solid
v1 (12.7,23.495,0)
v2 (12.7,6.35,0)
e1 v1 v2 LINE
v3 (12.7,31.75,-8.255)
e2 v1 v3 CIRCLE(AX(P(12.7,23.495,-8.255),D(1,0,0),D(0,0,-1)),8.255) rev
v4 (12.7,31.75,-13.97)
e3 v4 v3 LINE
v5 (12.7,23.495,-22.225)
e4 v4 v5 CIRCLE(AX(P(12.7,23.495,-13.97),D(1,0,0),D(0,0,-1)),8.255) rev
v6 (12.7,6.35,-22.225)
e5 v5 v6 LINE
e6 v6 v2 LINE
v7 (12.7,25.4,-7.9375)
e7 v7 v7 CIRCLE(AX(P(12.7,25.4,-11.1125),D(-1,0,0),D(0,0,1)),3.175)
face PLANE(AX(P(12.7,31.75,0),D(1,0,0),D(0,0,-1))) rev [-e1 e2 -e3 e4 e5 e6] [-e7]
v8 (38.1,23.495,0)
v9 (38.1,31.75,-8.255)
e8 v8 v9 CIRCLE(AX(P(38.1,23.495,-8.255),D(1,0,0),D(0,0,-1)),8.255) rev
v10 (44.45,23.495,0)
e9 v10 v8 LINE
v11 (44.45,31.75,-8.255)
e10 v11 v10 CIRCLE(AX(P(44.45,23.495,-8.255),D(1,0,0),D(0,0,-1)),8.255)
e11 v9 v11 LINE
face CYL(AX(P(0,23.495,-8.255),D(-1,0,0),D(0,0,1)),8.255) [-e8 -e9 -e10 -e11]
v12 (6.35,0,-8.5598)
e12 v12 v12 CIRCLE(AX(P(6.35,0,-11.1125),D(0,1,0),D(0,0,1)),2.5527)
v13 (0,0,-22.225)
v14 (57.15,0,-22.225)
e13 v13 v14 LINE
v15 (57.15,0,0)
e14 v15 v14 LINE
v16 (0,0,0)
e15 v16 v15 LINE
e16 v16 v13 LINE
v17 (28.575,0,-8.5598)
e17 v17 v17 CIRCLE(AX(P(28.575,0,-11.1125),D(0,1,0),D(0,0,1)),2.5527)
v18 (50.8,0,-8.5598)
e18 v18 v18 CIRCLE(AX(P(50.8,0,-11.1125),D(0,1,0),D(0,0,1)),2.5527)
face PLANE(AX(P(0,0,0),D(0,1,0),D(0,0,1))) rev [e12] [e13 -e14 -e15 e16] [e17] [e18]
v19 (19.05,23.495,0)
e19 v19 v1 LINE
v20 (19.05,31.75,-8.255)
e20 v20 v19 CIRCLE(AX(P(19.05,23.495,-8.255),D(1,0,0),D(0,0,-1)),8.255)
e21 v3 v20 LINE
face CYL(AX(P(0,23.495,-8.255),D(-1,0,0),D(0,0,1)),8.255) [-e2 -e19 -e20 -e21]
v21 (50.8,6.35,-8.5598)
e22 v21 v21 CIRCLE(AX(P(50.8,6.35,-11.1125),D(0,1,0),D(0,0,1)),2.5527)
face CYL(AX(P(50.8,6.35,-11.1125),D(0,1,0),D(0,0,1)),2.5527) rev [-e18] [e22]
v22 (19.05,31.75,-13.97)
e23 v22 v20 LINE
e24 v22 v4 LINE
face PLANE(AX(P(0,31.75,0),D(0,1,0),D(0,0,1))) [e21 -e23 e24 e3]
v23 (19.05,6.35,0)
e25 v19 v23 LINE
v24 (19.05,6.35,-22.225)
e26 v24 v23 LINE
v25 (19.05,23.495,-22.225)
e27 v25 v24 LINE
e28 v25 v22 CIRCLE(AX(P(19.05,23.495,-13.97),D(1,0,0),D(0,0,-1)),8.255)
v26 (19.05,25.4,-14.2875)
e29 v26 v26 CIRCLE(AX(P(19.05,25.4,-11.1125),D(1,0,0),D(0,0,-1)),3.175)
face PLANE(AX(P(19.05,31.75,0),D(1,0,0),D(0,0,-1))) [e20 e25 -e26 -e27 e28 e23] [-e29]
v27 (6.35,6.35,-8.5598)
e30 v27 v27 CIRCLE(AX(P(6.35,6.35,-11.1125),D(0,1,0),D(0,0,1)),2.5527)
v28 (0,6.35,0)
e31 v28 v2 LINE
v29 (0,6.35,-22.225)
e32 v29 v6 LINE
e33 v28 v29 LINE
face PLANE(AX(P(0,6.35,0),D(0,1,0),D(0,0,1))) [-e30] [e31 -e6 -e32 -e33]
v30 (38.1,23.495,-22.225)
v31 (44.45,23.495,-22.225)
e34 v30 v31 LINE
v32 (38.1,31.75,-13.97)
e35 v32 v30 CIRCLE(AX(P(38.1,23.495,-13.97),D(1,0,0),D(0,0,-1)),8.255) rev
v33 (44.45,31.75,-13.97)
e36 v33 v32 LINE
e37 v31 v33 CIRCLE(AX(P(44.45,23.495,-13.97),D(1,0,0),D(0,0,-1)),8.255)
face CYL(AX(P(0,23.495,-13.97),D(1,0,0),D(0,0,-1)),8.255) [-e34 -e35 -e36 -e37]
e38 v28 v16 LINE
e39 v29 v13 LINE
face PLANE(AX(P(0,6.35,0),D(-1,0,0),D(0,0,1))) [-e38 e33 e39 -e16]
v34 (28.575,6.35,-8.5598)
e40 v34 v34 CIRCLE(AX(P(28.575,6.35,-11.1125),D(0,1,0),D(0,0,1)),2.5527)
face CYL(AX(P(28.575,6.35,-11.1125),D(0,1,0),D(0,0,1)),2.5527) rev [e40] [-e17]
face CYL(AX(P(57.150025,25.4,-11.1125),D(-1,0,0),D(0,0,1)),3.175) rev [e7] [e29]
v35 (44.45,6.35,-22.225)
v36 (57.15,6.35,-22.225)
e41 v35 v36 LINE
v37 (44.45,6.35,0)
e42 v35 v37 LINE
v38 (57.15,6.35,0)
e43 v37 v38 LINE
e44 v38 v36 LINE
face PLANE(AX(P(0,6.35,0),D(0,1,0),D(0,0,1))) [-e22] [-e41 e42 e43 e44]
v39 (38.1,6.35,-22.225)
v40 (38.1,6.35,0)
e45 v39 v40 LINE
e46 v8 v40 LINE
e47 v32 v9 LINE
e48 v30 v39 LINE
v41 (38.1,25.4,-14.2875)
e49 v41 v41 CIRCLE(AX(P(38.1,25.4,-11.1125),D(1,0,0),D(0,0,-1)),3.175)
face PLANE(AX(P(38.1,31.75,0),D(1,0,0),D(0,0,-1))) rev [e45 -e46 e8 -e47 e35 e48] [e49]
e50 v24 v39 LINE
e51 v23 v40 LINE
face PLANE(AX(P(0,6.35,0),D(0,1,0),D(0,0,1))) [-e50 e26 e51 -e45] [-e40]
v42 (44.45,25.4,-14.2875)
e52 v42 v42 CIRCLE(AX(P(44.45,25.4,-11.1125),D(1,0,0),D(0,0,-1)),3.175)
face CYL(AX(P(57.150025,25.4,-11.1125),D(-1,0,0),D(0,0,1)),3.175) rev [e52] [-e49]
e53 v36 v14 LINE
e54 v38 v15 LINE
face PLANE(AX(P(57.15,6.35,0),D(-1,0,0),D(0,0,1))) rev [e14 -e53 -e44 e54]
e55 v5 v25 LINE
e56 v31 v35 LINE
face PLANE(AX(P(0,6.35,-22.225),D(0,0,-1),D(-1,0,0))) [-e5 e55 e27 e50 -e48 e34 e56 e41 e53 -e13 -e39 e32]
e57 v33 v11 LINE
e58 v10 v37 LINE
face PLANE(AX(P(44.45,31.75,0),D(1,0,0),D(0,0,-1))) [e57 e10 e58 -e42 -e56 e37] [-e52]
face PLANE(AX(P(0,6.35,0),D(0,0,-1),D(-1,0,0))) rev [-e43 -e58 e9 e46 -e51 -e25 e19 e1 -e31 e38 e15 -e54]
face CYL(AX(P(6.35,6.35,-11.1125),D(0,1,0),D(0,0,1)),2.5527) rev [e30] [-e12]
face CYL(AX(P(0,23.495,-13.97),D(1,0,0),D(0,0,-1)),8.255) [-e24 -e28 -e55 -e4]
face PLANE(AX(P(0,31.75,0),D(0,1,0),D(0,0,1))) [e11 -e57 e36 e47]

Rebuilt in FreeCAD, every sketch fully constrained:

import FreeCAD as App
import Part
import Sketcher

V = App.Vector
Q = App.Units.Quantity


def edges_at(feature, points):
    """Names of the edges that pass closest to the given points."""
    edges = feature.Shape.Edges
    near = lambda p: min(range(len(edges)), key=lambda i: edges[i].distToShape(Part.Vertex(*p))[0])
    return sorted({f"Edge{near(p) + 1}" for p in points})

doc = App.newDocument("Part")
body = doc.addObject("PartDesign::Body", "Body")

sketch1 = body.newObject("Sketcher::SketchObject", "Sketch")
sketch1.AttachmentSupport = (doc.getObject("XZ_Plane"), [""])
sketch1.MapMode = "FlatFace"
sketch1.addGeometry([
    Part.LineSegment(V(0, -22, 0), V(0, 0, 0)),
    Part.LineSegment(V(0, 0, 0), V(13, 0, 0)),
    Part.LineSegment(V(13, 0, 0), V(13, -22, 0)),
    Part.LineSegment(V(13, -22, 0), V(0, -22, 0)),
], False)
sketch1.addConstraint([
    Sketcher.Constraint("Coincident", 0, 2, 1, 1),
    Sketcher.Constraint("Coincident", 1, 2, 2, 1),
    Sketcher.Constraint("Coincident", 2, 2, 3, 1),
    Sketcher.Constraint("Coincident", 3, 2, 0, 1),
    Sketcher.Constraint("Vertical", 0),
    Sketcher.Constraint("Horizontal", 1),
    Sketcher.Constraint("Vertical", 2),
    Sketcher.Constraint("Horizontal", 3),
    Sketcher.Constraint("Coincident", 0, 2, -1, 1),
    Sketcher.Constraint("DistanceX", 1, 1, 1, 2, Q("0.5 in")),
    Sketcher.Constraint("DistanceY", 0, 1, 0, 2, Q("0.875 in")),
])
pad1 = body.newObject("PartDesign::Pad", "Pad")
pad1.Profile = sketch1
pad1.Length = Q("0.25 in")
pad1.Reversed = True
body2 = doc.addObject("PartDesign::Body", "Body001")

sketch2 = body2.newObject("Sketcher::SketchObject", "Sketch001")
sketch2.AttachmentSupport = (doc.getObject("XZ_Plane001"), [""])
sketch2.MapMode = "FlatFace"
sketch2.addGeometry([
    Part.LineSegment(V(44, -22, 0), V(44, 0, 0)),
    Part.LineSegment(V(44, 0, 0), V(57, 0, 0)),
    Part.LineSegment(V(57, 0, 0), V(57, -22, 0)),
    Part.LineSegment(V(57, -22, 0), V(44, -22, 0)),
], False)
sketch2.addConstraint([
    Sketcher.Constraint("Coincident", 0, 2, 1, 1),
    Sketcher.Constraint("Coincident", 1, 2, 2, 1),
    Sketcher.Constraint("Coincident", 2, 2, 3, 1),
    Sketcher.Constraint("Coincident", 3, 2, 0, 1),
    Sketcher.Constraint("Vertical", 0),
    Sketcher.Constraint("Horizontal", 1),
    Sketcher.Constraint("Vertical", 2),
    Sketcher.Constraint("Horizontal", 3),
    Sketcher.Constraint("PointOnObject", 0, 2, -1),
    Sketcher.Constraint("DistanceX", 1, 1, 1, 2, Q("0.5 in")),
    Sketcher.Constraint("DistanceY", 0, 1, 0, 2, Q("0.875 in")),
    Sketcher.Constraint("DistanceX", -1, 1, 0, 2, Q("1.75 in")),
])
pad2 = body2.newObject("PartDesign::Pad", "Pad001")
pad2.Profile = sketch2
pad2.Length = Q("0.25 in")
pad2.Reversed = True
body3 = doc.addObject("PartDesign::Body", "Body002")

sketch3 = body3.newObject("Sketcher::SketchObject", "Sketch002")
sketch3.AttachmentSupport = (doc.getObject("XZ_Plane002"), [""])
sketch3.MapMode = "FlatFace"
sketch3.addGeometry([
    Part.LineSegment(V(19, -22, 0), V(19, 0, 0)),
    Part.LineSegment(V(19, 0, 0), V(38, 0, 0)),
    Part.LineSegment(V(38, 0, 0), V(38, -22, 0)),
    Part.LineSegment(V(38, -22, 0), V(19, -22, 0)),
], False)
sketch3.addConstraint([
    Sketcher.Constraint("Coincident", 0, 2, 1, 1),
    Sketcher.Constraint("Coincident", 1, 2, 2, 1),
    Sketcher.Constraint("Coincident", 2, 2, 3, 1),
    Sketcher.Constraint("Coincident", 3, 2, 0, 1),
    Sketcher.Constraint("Vertical", 0),
    Sketcher.Constraint("Horizontal", 1),
    Sketcher.Constraint("Vertical", 2),
    Sketcher.Constraint("Horizontal", 3),
    Sketcher.Constraint("PointOnObject", 0, 2, -1),
    Sketcher.Constraint("DistanceX", 1, 1, 1, 2, Q("0.75 in")),
    Sketcher.Constraint("DistanceX", -1, 1, 1, 2, Q("1.5 in")),
    Sketcher.Constraint("DistanceY", 0, 1, 0, 2, Q("0.875 in")),
])
pad3 = body3.newObject("PartDesign::Pad", "Pad002")
pad3.Profile = sketch3
pad3.Length = Q("0.25 in")
pad3.Reversed = True
body.AllowCompound = True
doc.recompute()

boolean = body.newObject("PartDesign::Boolean", "Boolean")
boolean.Type = "Fuse"
boolean.addObjects([body2])
doc.recompute()

boolean2 = body.newObject("PartDesign::Boolean", "Boolean001")
boolean2.Type = "Fuse"
boolean2.addObjects([body3])

sketch4 = body.newObject("Sketcher::SketchObject", "Sketch003")
sketch4.AttachmentSupport = (doc.getObject("XZ_Plane"), [""])
sketch4.MapMode = "FlatFace"
sketch4.addGeometry([
    Part.LineSegment(V(13, -22, 0), V(13, 0, 0)),
    Part.LineSegment(V(13, 0, 0), V(19, 0, 0)),
    Part.LineSegment(V(19, 0, 0), V(19, -22, 0)),
    Part.LineSegment(V(19, -22, 0), V(13, -22, 0)),
    Part.LineSegment(V(38, -22, 0), V(38, 0, 0)),
    Part.LineSegment(V(38, 0, 0), V(44, 0, 0)),
    Part.LineSegment(V(44, 0, 0), V(44, -22, 0)),
    Part.LineSegment(V(44, -22, 0), V(38, -22, 0)),
], False)
sketch4.addConstraint([
    Sketcher.Constraint("Coincident", 0, 2, 1, 1),
    Sketcher.Constraint("Coincident", 1, 2, 2, 1),
    Sketcher.Constraint("Coincident", 2, 2, 3, 1),
    Sketcher.Constraint("Coincident", 3, 2, 0, 1),
    Sketcher.Constraint("Coincident", 4, 2, 5, 1),
    Sketcher.Constraint("Coincident", 5, 2, 6, 1),
    Sketcher.Constraint("Coincident", 6, 2, 7, 1),
    Sketcher.Constraint("Coincident", 7, 2, 4, 1),
    Sketcher.Constraint("Vertical", 0),
    Sketcher.Constraint("Horizontal", 1),
    Sketcher.Constraint("Vertical", 2),
    Sketcher.Constraint("Horizontal", 3),
    Sketcher.Constraint("Vertical", 4),
    Sketcher.Constraint("Horizontal", 5),
    Sketcher.Constraint("Vertical", 6),
    Sketcher.Constraint("Horizontal", 7),
    Sketcher.Constraint("PointOnObject", 0, 2, -1),
    Sketcher.Constraint("PointOnObject", 4, 2, -1),
    Sketcher.Constraint("Horizontal", 3, 2, 6, 2),
    Sketcher.Constraint("Equal", 3, 5),
    Sketcher.Constraint("DistanceX", 0, 2, 4, 2, Q("1 in")),
    Sketcher.Constraint("DistanceX", 1, 1, 1, 2, Q("0.25 in")),
    Sketcher.Constraint("DistanceX", -1, 1, 0, 2, Q("0.5 in")),
    Sketcher.Constraint("DistanceY", 0, 1, 0, 2, Q("0.875 in")),
])
pad4 = body.newObject("PartDesign::Pad", "Pad003")
pad4.Profile = sketch4
pad4.Length = Q("1.25 in")
pad4.Reversed = True

sketch5 = body.newObject("Sketcher::SketchObject", "Sketch004")
sketch5.AttachmentSupport = (doc.getObject("YZ_Plane"), [""])
sketch5.MapMode = "FlatFace"
sketch5.AttachmentOffset = App.Placement(V(0, 0, 0.5 * 25.4), App.Rotation())
sketch5.addGeometry(Part.Circle(V(25.4, -11.1, 0), V(0, 0, 1), 3.2), False)
sketch5.addConstraint([
    Sketcher.Constraint("Diameter", 0, Q("0.25 in")),
    Sketcher.Constraint("DistanceX", -1, 1, 0, 3, Q("1 in")),
    Sketcher.Constraint("DistanceY", 0, 3, -1, 1, Q("0.4375 in")),
])
pocket1 = body.newObject("PartDesign::Pocket", "Pocket")
pocket1.Profile = sketch5
pocket1.Type = "ThroughAll"
pocket1.Reversed = True

sketch6 = body.newObject("Sketcher::SketchObject", "Sketch005")
sketch6.AttachmentSupport = (doc.getObject("XZ_Plane"), [""])
sketch6.MapMode = "FlatFace"
sketch6.AttachmentOffset = App.Placement(V(0, 0, -0.25 * 25.4), App.Rotation())
sketch6.addGeometry([
    Part.Circle(V(6.3, -11.1, 0), V(0, 0, 1), 2.6),
    Part.Circle(V(28.6, -11.1, 0), V(0, 0, 1), 2.6),
    Part.Circle(V(50.8, -11.1, 0), V(0, 0, 1), 2.6),
], False)
sketch6.addConstraint([
    Sketcher.Constraint("Equal", 0, 1),
    Sketcher.Constraint("Equal", 1, 2),
    Sketcher.Constraint("Horizontal", 0, 3, 1, 3),
    Sketcher.Constraint("Horizontal", 1, 3, 2, 3),
    Sketcher.Constraint("Diameter", 0, Q("0.201 in")),
    Sketcher.Constraint("DistanceX", -1, 1, 2, 3, Q("2 in")),
    Sketcher.Constraint("DistanceX", -1, 1, 0, 3, Q("0.25 in")),
    Sketcher.Constraint("DistanceY", 0, 3, -1, 1, Q("0.4375 in")),
    Sketcher.Constraint("DistanceX", -1, 1, 1, 3, Q("1.125 in")),
])
doc.recompute()
hole = body.newObject("PartDesign::Hole", "Hole")
hole.Profile = sketch6
hole.ThreadType = "None"
hole.Diameter = Q("0.201 in")
hole.DepthType = "Dimension"
hole.Depth = Q("0.75 in")
hole.DrillPoint = "Angled"
hole.DrillPointAngle = 118
hole.Reversed = True
doc.recompute()

fillet = body.newObject("PartDesign::Fillet", "Fillet")
fillet.Base = (hole, edges_at(hole, [
    (15.875, 31.75, -22.225),
    (41.275, 31.75, -22.225),
    (41.275, 31.75, 0),
    (15.875, 31.75, 0),
]))
fillet.Radius = Q("0.325 in")

doc.recompute()
